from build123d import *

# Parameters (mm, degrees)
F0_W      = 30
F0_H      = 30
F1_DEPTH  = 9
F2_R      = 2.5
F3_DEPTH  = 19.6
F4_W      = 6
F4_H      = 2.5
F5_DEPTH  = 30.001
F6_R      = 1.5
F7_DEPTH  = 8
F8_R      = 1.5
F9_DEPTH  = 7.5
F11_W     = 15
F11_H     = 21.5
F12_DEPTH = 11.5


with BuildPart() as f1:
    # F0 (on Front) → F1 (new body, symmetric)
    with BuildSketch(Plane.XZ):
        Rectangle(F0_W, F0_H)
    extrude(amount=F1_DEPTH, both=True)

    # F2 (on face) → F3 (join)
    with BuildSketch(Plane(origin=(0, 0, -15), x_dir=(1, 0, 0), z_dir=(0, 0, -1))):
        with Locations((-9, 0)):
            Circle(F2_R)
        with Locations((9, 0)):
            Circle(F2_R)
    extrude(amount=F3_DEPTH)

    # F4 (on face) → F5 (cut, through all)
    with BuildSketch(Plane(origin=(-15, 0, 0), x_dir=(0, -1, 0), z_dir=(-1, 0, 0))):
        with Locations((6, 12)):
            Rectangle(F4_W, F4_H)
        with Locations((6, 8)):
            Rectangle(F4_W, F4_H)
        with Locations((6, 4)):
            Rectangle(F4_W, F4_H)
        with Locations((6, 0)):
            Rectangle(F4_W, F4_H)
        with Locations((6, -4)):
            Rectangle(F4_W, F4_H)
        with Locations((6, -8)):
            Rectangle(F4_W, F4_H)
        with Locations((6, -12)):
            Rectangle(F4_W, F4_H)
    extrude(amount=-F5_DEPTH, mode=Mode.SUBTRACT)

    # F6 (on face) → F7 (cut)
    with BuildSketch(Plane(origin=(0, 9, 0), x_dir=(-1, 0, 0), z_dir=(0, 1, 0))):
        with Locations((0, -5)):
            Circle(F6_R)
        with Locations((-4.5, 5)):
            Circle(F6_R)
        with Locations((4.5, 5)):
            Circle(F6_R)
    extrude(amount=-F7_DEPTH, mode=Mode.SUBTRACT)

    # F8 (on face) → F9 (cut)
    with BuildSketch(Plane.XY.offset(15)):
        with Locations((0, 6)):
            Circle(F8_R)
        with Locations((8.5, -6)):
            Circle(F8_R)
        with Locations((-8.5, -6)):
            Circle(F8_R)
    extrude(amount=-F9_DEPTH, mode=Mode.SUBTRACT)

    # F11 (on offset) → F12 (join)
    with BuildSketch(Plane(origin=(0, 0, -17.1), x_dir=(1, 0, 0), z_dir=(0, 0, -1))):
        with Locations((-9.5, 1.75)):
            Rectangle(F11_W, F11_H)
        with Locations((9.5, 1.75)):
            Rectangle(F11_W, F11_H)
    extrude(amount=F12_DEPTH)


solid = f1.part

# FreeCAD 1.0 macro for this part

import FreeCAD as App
import Part
import Sketcher


def add_polygon(sketch, points):
    """Adds a closed chain of lines whose ends are joined by coincident constraints."""
    first, n = sketch.GeometryCount, len(points)
    for a, b in zip(points, points[1:] + points[:1]):
        sketch.addGeometry(Part.LineSegment(App.Vector(*a, 0), App.Vector(*b, 0)), False)
    for i in range(n):
        sketch.addConstraint(Sketcher.Constraint("Coincident", first + i, 2, first + (i + 1) % n, 1))

doc = App.newDocument("Part")
body = doc.addObject("PartDesign::Body", "Body")

sketch1 = doc.addObject("Sketcher::SketchObject", "Sketch")
body.addObject(sketch1)
sketch1.AttachmentSupport = (doc.XZ_Plane, [""])
sketch1.MapMode = "FlatFace"
add_polygon(sketch1, [(-15, 15), (-15, -15), (15, -15), (15, 15)])
sketch1.addConstraint([
    Sketcher.Constraint("Vertical", 0),
    Sketcher.Constraint("Horizontal", 1),
    Sketcher.Constraint("Vertical", 2),
    Sketcher.Constraint("Horizontal", 3),
    Sketcher.Constraint("Symmetric", 0, 2, 2, 2, -1, 1),
    Sketcher.Constraint("Equal", 3, 0),
    Sketcher.Constraint("DistanceX", 1, 1, 1, 2, 30.0),
])
pad1 = doc.addObject("PartDesign::Pad", "Pad")
body.addObject(pad1)
pad1.Profile = sketch1
pad1.Length = 18
pad1.Midplane = True

sketch2 = doc.addObject("Sketcher::SketchObject", "Sketch001")
body.addObject(sketch2)
sketch2.AttachmentSupport = (doc.XY_Plane, [""])
sketch2.MapMode = "FlatFace"
sketch2.AttachmentOffset = App.Placement(App.Vector(0, 0, -15), App.Rotation())
sketch2.addGeometry([
    Part.Circle(App.Vector(-9, 0, 0), App.Vector(0, 0, 1), 2.5),
    Part.Circle(App.Vector(9, 0, 0), App.Vector(0, 0, 1), 2.5),
], False)
sketch2.addConstraint([
    Sketcher.Constraint("Equal", 0, 1),
    Sketcher.Constraint("Symmetric", 0, 3, 1, 3, -1, 1),
    Sketcher.Constraint("PointOnObject", 0, 3, -1),
    Sketcher.Constraint("Diameter", 0, 5.0),
    Sketcher.Constraint("DistanceX", 0, 3, -1, 1, 9.0),
])
pad2 = doc.addObject("PartDesign::Pad", "Pad001")
body.addObject(pad2)
pad2.Profile = sketch2
pad2.Length = 19.6
pad2.Reversed = True

sketch3 = doc.addObject("Sketcher::SketchObject", "Sketch002")
body.addObject(sketch3)
sketch3.AttachmentSupport = (doc.YZ_Plane, [""])
sketch3.MapMode = "FlatFace"
sketch3.AttachmentOffset = App.Placement(App.Vector(0, 0, -15), App.Rotation())
add_polygon(sketch3, [(-3, 13.2), (-3, 10.8), (-9, 10.8), (-9, 13.2)])
add_polygon(sketch3, [(-3, 9.2), (-3, 6.8), (-9, 6.8), (-9, 9.2)])
add_polygon(sketch3, [(-3, 5.2), (-3, 2.8), (-9, 2.8), (-9, 5.2)])
add_polygon(sketch3, [(-3, 1.2), (-3, -1.2), (-9, -1.2), (-9, 1.2)])
add_polygon(sketch3, [(-3, -2.8), (-3, -5.2), (-9, -5.2), (-9, -2.8)])
add_polygon(sketch3, [(-3, -6.8), (-3, -9.2), (-9, -9.2), (-9, -6.8)])
add_polygon(sketch3, [(-3, -10.8), (-3, -13.2), (-9, -13.2), (-9, -10.8)])
sketch3.addConstraint([
    Sketcher.Constraint("Vertical", 0),
    Sketcher.Constraint("Horizontal", 1),
    Sketcher.Constraint("Vertical", 2),
    Sketcher.Constraint("Horizontal", 3),
    Sketcher.Constraint("Vertical", 4),
    Sketcher.Constraint("Horizontal", 5),
    Sketcher.Constraint("Vertical", 6),
    Sketcher.Constraint("Horizontal", 7),
    Sketcher.Constraint("Vertical", 8),
    Sketcher.Constraint("Horizontal", 9),
    Sketcher.Constraint("Vertical", 10),
    Sketcher.Constraint("Horizontal", 11),
    Sketcher.Constraint("Vertical", 12),
    Sketcher.Constraint("Horizontal", 13),
    Sketcher.Constraint("Vertical", 14),
    Sketcher.Constraint("Horizontal", 15),
    Sketcher.Constraint("Vertical", 16),
    Sketcher.Constraint("Horizontal", 17),
    Sketcher.Constraint("Vertical", 18),
    Sketcher.Constraint("Horizontal", 19),
    Sketcher.Constraint("Vertical", 20),
    Sketcher.Constraint("Horizontal", 21),
    Sketcher.Constraint("Vertical", 22),
    Sketcher.Constraint("Horizontal", 23),
    Sketcher.Constraint("Vertical", 24),
    Sketcher.Constraint("Horizontal", 25),
    Sketcher.Constraint("Vertical", 26),
    Sketcher.Constraint("Horizontal", 27),
    Sketcher.Constraint("Symmetric", 11, 2, 16, 2, -1),
    Sketcher.Constraint("Symmetric", 9, 2, 18, 2, -1),
    Sketcher.Constraint("Symmetric", 7, 2, 20, 2, -1),
    Sketcher.Constraint("Symmetric", 5, 2, 22, 2, -1),
    Sketcher.Constraint("Symmetric", 3, 2, 24, 2, -1),
    Sketcher.Constraint("Symmetric", 1, 2, 26, 2, -1),
    Sketcher.Constraint("Vertical", 3, 2, 4, 2),
    Sketcher.Constraint("Vertical", 2, 2, 5, 2),
    Sketcher.Constraint("Vertical", 7, 2, 8, 2),
    Sketcher.Constraint("Vertical", 6, 2, 9, 2),
    Sketcher.Constraint("Vertical", 11, 2, 12, 2),
    Sketcher.Constraint("Vertical", 10, 2, 13, 2),
    Sketcher.Constraint("Equal", 2, 4),
    Sketcher.Constraint("Equal", 6, 8),
    Sketcher.Constraint("Equal", 10, 12),
    Sketcher.Constraint("DistanceX", 1, 2, 1, 1, 6.0),
    Sketcher.Constraint("DistanceY", 0, 2, 0, 1, 2.5),
    Sketcher.Constraint("DistanceX", 0, 2, -1, 1, 3.0),
    Sketcher.Constraint("DistanceY", 4, 2, 0, 2, 4.0),
    Sketcher.Constraint("DistanceY", 8, 2, 4, 2, 4.0),
    Sketcher.Constraint("DistanceY", 12, 2, 8, 2, 4.0),
    Sketcher.Constraint("DistanceY", 16, 2, 12, 2, 4.0),
])
pocket1 = doc.addObject("PartDesign::Pocket", "Pocket")
body.addObject(pocket1)
pocket1.Profile = sketch3
pocket1.Type = "ThroughAll"
pocket1.Reversed = True

sketch4 = doc.addObject("Sketcher::SketchObject", "Sketch003")
body.addObject(sketch4)
sketch4.AttachmentSupport = (doc.XZ_Plane, [""])
sketch4.MapMode = "FlatFace"
sketch4.AttachmentOffset = App.Placement(App.Vector(0, 0, -9), App.Rotation())
sketch4.addGeometry([
    Part.Circle(App.Vector(0, -5, 0), App.Vector(0, 0, 1), 1.5),
    Part.Circle(App.Vector(4.5, 5, 0), App.Vector(0, 0, 1), 1.5),
    Part.Circle(App.Vector(-4.5, 5, 0), App.Vector(0, 0, 1), 1.5),
], False)
sketch4.addConstraint([
    Sketcher.Constraint("Equal", 0, 1),
    Sketcher.Constraint("Equal", 1, 2),
    Sketcher.Constraint("Symmetric", 1, 3, 2, 3, -2),
    Sketcher.Constraint("PointOnObject", 0, 3, -2),
    Sketcher.Constraint("Diameter", 0, 3.0),
    Sketcher.Constraint("DistanceY", 0, 3, -1, 1, 5.0),
    Sketcher.Constraint("DistanceY", -1, 1, 1, 3, 5.0),
    Sketcher.Constraint("DistanceX", 2, 3, 1, 3, 9.0),
])
pocket2 = doc.addObject("PartDesign::Pocket", "Pocket001")
body.addObject(pocket2)
pocket2.Profile = sketch4
pocket2.Length = 8
pocket2.Reversed = True

sketch5 = doc.addObject("Sketcher::SketchObject", "Sketch004")
body.addObject(sketch5)
sketch5.AttachmentSupport = (doc.XY_Plane, [""])
sketch5.MapMode = "FlatFace"
sketch5.AttachmentOffset = App.Placement(App.Vector(0, 0, 15), App.Rotation())
sketch5.addGeometry([
    Part.Circle(App.Vector(0, 6, 0), App.Vector(0, 0, 1), 1.5),
    Part.Circle(App.Vector(8.5, -6, 0), App.Vector(0, 0, 1), 1.5),
    Part.Circle(App.Vector(-8.5, -6, 0), App.Vector(0, 0, 1), 1.5),
], False)
sketch5.addConstraint([
    Sketcher.Constraint("Equal", 0, 1),
    Sketcher.Constraint("Equal", 1, 2),
    Sketcher.Constraint("Symmetric", 1, 3, 2, 3, -2),
    Sketcher.Constraint("PointOnObject", 0, 3, -2),
    Sketcher.Constraint("Diameter", 0, 3.0),
    Sketcher.Constraint("DistanceY", -1, 1, 0, 3, 6.0),
    Sketcher.Constraint("DistanceY", 1, 3, -1, 1, 6.0),
    Sketcher.Constraint("DistanceX", 2, 3, 1, 3, 17.0),
])
pocket3 = doc.addObject("PartDesign::Pocket", "Pocket002")
body.addObject(pocket3)
pocket3.Profile = sketch5
pocket3.Length = 7.5

sketch6 = doc.addObject("Sketcher::SketchObject", "Sketch005")
body.addObject(sketch6)
sketch6.AttachmentSupport = (doc.XY_Plane, [""])
sketch6.MapMode = "FlatFace"
sketch6.AttachmentOffset = App.Placement(App.Vector(0, 0, -17.1), App.Rotation())
add_polygon(sketch6, [(-17, -12), (-17, 9), (-2, 9), (-2, -12)])
add_polygon(sketch6, [(2, -12), (2, 9), (17, 9), (17, -12)])
sketch6.addConstraint([
    Sketcher.Constraint("Vertical", 0),
    Sketcher.Constraint("Horizontal", 1),
    Sketcher.Constraint("Vertical", 2),
    Sketcher.Constraint("Horizontal", 3),
    Sketcher.Constraint("Vertical", 4),
    Sketcher.Constraint("Horizontal", 5),
    Sketcher.Constraint("Vertical", 6),
    Sketcher.Constraint("Horizontal", 7),
    Sketcher.Constraint("Symmetric", 1, 2, 4, 2, -2),
    Sketcher.Constraint("Symmetric", 3, 2, 6, 2, -2),
    Sketcher.Constraint("DistanceX", 1, 1, 1, 2, 15.0),
    Sketcher.Constraint("DistanceY", 0, 1, 0, 2, 21.5),
    Sketcher.Constraint("DistanceX", 0, 2, -1, 1, 17.0),
    Sketcher.Constraint("DistanceY", -1, 1, 0, 2, 9.0),
])
pad3 = doc.addObject("PartDesign::Pad", "Pad002")
body.addObject(pad3)
pad3.Profile = sketch6
pad3.Length = 11.5
pad3.Reversed = True

doc.recompute()
